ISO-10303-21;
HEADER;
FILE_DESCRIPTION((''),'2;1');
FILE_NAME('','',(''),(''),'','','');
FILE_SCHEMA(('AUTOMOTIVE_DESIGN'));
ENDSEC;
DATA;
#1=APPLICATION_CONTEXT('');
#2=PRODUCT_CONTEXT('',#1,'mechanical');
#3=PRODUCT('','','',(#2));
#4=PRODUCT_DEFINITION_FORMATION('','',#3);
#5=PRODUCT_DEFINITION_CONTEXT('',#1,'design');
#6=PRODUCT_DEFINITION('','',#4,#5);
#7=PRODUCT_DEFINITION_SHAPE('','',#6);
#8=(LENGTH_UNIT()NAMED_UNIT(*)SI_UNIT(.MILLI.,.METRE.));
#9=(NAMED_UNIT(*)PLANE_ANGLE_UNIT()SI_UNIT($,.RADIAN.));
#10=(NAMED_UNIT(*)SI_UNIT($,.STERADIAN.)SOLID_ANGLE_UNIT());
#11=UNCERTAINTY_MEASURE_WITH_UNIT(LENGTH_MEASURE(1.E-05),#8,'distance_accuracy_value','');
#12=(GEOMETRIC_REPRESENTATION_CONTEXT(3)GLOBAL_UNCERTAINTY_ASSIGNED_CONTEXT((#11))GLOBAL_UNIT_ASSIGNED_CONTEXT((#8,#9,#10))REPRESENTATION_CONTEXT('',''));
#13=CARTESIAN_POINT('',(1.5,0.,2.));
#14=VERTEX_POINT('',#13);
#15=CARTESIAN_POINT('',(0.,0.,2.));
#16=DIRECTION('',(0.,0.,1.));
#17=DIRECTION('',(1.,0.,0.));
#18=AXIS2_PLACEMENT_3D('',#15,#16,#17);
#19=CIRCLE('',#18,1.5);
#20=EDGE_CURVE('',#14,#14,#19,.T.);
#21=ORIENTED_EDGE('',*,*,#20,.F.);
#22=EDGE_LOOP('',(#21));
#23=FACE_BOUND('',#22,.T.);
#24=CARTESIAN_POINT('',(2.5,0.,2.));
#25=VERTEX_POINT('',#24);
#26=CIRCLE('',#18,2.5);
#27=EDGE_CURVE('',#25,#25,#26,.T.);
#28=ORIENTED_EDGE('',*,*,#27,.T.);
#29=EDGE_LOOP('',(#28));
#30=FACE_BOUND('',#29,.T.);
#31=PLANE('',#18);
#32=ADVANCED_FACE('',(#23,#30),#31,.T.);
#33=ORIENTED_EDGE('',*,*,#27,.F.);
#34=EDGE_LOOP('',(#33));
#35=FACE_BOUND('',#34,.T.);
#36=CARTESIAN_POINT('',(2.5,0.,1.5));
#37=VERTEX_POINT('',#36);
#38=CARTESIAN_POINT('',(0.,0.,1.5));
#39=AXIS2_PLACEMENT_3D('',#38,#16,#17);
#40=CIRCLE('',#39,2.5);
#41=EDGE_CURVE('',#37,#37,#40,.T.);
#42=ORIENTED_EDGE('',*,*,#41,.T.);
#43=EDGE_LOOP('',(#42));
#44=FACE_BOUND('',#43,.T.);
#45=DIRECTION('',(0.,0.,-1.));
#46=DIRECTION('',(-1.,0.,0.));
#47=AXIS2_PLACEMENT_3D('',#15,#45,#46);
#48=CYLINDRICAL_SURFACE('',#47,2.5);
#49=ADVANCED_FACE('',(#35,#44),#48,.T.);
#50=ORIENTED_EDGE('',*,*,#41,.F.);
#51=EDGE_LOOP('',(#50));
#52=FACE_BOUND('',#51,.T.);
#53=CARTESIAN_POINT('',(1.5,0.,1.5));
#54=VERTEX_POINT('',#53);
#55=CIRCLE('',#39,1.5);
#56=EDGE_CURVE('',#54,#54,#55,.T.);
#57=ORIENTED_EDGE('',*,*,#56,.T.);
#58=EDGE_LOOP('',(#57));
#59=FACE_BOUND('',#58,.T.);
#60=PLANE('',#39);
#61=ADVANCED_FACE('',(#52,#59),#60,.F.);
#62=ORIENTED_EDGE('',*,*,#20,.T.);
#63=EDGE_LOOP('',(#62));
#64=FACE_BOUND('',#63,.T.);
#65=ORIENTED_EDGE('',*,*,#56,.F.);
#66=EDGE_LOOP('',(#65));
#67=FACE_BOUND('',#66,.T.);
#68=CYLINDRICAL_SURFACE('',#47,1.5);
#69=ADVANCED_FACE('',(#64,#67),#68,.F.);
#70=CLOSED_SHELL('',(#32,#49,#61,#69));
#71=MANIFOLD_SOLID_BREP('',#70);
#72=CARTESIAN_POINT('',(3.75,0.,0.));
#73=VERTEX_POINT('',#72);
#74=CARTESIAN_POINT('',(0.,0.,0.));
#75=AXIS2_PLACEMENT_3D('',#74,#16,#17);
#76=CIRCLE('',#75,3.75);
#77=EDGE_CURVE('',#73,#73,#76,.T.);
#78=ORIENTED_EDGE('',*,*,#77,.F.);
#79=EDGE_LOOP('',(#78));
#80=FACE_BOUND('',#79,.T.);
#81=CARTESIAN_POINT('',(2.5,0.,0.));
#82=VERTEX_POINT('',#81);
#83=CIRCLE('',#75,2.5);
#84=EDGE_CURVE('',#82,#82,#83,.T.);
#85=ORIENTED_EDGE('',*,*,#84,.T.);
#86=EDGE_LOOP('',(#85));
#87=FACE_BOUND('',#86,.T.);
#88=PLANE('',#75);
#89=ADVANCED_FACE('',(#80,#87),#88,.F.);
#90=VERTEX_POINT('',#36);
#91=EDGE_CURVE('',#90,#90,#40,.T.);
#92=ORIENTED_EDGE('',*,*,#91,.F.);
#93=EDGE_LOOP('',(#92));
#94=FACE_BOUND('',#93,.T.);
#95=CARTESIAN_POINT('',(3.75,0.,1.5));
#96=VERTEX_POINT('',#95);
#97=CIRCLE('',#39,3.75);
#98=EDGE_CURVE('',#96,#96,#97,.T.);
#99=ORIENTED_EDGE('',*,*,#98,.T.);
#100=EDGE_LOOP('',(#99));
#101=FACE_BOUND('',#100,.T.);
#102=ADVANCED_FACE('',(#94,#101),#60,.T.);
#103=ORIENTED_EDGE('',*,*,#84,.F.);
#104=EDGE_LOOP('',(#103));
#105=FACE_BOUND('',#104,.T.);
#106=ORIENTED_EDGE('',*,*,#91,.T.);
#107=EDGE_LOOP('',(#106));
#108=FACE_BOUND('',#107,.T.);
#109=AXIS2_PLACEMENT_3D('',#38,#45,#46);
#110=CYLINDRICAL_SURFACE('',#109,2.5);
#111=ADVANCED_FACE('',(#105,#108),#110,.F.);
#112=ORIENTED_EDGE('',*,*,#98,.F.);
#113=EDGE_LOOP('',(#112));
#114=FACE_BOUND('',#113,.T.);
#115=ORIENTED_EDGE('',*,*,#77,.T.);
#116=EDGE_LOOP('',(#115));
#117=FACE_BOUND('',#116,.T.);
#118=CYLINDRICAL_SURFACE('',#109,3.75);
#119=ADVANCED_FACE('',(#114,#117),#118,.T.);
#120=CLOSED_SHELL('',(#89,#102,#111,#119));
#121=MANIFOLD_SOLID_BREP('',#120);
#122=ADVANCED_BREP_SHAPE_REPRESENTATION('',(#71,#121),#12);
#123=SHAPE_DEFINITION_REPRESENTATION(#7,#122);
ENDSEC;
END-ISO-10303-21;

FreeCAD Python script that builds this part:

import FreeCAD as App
import Part
import Sketcher
from FreeCAD import Vector
Q = App.Units.Quantity

doc = App.newDocument("Part")
body = doc.addObject("PartDesign::Body", "Body")

sketch1 = body.newObject("Sketcher::SketchObject", "Sketch")
sketch1.AttachmentSupport = (doc.getObject("XY_Plane"), [""])
sketch1.MapMode = "FlatFace"
sketch1.addGeometry([
    Part.Circle(Vector(0, 0, 0), Vector(0, 0, 1), 3.8),
    Part.Circle(Vector(0, 0, 0), Vector(0, 0, 1), 2.5),
], False)
sketch1.addConstraint([
    Sketcher.Constraint("Coincident", 0, 3, -1, 1),
    Sketcher.Constraint("Coincident", 1, 3, -1, 1),
    Sketcher.Constraint("Diameter", 1, Q("5 mm")),
    Sketcher.Constraint("Diameter", 0, Q("7.5 mm")),
])
pad1 = body.newObject("PartDesign::Pad", "Pad")
pad1.Profile = sketch1
pad1.Length = 1.5
body2 = doc.addObject("PartDesign::Body", "Body001")

sketch2 = body2.newObject("Sketcher::SketchObject", "Sketch001")
sketch2.AttachmentSupport = (doc.getObject("XY_Plane001"), [""])
sketch2.MapMode = "FlatFace"
sketch2.AttachmentOffset = App.Placement(Vector(0, 0, 1.5), App.Rotation())
sketch2.addGeometry([
    Part.Circle(Vector(0, 0, 0), Vector(0, 0, 1), 2.5),
    Part.Circle(Vector(0, 0, 0), Vector(0, 0, 1), 1.5),
], False)
sketch2.addConstraint([
    Sketcher.Constraint("Coincident", 0, 3, -1, 1),
    Sketcher.Constraint("Coincident", 1, 3, -1, 1),
    Sketcher.Constraint("Diameter", 0, Q("5 mm")),
    Sketcher.Constraint("Diameter", 1, Q("3 mm")),
])
pad2 = body2.newObject("PartDesign::Pad", "Pad001")
pad2.Profile = sketch2
pad2.Length = 0.5

doc.recompute()
